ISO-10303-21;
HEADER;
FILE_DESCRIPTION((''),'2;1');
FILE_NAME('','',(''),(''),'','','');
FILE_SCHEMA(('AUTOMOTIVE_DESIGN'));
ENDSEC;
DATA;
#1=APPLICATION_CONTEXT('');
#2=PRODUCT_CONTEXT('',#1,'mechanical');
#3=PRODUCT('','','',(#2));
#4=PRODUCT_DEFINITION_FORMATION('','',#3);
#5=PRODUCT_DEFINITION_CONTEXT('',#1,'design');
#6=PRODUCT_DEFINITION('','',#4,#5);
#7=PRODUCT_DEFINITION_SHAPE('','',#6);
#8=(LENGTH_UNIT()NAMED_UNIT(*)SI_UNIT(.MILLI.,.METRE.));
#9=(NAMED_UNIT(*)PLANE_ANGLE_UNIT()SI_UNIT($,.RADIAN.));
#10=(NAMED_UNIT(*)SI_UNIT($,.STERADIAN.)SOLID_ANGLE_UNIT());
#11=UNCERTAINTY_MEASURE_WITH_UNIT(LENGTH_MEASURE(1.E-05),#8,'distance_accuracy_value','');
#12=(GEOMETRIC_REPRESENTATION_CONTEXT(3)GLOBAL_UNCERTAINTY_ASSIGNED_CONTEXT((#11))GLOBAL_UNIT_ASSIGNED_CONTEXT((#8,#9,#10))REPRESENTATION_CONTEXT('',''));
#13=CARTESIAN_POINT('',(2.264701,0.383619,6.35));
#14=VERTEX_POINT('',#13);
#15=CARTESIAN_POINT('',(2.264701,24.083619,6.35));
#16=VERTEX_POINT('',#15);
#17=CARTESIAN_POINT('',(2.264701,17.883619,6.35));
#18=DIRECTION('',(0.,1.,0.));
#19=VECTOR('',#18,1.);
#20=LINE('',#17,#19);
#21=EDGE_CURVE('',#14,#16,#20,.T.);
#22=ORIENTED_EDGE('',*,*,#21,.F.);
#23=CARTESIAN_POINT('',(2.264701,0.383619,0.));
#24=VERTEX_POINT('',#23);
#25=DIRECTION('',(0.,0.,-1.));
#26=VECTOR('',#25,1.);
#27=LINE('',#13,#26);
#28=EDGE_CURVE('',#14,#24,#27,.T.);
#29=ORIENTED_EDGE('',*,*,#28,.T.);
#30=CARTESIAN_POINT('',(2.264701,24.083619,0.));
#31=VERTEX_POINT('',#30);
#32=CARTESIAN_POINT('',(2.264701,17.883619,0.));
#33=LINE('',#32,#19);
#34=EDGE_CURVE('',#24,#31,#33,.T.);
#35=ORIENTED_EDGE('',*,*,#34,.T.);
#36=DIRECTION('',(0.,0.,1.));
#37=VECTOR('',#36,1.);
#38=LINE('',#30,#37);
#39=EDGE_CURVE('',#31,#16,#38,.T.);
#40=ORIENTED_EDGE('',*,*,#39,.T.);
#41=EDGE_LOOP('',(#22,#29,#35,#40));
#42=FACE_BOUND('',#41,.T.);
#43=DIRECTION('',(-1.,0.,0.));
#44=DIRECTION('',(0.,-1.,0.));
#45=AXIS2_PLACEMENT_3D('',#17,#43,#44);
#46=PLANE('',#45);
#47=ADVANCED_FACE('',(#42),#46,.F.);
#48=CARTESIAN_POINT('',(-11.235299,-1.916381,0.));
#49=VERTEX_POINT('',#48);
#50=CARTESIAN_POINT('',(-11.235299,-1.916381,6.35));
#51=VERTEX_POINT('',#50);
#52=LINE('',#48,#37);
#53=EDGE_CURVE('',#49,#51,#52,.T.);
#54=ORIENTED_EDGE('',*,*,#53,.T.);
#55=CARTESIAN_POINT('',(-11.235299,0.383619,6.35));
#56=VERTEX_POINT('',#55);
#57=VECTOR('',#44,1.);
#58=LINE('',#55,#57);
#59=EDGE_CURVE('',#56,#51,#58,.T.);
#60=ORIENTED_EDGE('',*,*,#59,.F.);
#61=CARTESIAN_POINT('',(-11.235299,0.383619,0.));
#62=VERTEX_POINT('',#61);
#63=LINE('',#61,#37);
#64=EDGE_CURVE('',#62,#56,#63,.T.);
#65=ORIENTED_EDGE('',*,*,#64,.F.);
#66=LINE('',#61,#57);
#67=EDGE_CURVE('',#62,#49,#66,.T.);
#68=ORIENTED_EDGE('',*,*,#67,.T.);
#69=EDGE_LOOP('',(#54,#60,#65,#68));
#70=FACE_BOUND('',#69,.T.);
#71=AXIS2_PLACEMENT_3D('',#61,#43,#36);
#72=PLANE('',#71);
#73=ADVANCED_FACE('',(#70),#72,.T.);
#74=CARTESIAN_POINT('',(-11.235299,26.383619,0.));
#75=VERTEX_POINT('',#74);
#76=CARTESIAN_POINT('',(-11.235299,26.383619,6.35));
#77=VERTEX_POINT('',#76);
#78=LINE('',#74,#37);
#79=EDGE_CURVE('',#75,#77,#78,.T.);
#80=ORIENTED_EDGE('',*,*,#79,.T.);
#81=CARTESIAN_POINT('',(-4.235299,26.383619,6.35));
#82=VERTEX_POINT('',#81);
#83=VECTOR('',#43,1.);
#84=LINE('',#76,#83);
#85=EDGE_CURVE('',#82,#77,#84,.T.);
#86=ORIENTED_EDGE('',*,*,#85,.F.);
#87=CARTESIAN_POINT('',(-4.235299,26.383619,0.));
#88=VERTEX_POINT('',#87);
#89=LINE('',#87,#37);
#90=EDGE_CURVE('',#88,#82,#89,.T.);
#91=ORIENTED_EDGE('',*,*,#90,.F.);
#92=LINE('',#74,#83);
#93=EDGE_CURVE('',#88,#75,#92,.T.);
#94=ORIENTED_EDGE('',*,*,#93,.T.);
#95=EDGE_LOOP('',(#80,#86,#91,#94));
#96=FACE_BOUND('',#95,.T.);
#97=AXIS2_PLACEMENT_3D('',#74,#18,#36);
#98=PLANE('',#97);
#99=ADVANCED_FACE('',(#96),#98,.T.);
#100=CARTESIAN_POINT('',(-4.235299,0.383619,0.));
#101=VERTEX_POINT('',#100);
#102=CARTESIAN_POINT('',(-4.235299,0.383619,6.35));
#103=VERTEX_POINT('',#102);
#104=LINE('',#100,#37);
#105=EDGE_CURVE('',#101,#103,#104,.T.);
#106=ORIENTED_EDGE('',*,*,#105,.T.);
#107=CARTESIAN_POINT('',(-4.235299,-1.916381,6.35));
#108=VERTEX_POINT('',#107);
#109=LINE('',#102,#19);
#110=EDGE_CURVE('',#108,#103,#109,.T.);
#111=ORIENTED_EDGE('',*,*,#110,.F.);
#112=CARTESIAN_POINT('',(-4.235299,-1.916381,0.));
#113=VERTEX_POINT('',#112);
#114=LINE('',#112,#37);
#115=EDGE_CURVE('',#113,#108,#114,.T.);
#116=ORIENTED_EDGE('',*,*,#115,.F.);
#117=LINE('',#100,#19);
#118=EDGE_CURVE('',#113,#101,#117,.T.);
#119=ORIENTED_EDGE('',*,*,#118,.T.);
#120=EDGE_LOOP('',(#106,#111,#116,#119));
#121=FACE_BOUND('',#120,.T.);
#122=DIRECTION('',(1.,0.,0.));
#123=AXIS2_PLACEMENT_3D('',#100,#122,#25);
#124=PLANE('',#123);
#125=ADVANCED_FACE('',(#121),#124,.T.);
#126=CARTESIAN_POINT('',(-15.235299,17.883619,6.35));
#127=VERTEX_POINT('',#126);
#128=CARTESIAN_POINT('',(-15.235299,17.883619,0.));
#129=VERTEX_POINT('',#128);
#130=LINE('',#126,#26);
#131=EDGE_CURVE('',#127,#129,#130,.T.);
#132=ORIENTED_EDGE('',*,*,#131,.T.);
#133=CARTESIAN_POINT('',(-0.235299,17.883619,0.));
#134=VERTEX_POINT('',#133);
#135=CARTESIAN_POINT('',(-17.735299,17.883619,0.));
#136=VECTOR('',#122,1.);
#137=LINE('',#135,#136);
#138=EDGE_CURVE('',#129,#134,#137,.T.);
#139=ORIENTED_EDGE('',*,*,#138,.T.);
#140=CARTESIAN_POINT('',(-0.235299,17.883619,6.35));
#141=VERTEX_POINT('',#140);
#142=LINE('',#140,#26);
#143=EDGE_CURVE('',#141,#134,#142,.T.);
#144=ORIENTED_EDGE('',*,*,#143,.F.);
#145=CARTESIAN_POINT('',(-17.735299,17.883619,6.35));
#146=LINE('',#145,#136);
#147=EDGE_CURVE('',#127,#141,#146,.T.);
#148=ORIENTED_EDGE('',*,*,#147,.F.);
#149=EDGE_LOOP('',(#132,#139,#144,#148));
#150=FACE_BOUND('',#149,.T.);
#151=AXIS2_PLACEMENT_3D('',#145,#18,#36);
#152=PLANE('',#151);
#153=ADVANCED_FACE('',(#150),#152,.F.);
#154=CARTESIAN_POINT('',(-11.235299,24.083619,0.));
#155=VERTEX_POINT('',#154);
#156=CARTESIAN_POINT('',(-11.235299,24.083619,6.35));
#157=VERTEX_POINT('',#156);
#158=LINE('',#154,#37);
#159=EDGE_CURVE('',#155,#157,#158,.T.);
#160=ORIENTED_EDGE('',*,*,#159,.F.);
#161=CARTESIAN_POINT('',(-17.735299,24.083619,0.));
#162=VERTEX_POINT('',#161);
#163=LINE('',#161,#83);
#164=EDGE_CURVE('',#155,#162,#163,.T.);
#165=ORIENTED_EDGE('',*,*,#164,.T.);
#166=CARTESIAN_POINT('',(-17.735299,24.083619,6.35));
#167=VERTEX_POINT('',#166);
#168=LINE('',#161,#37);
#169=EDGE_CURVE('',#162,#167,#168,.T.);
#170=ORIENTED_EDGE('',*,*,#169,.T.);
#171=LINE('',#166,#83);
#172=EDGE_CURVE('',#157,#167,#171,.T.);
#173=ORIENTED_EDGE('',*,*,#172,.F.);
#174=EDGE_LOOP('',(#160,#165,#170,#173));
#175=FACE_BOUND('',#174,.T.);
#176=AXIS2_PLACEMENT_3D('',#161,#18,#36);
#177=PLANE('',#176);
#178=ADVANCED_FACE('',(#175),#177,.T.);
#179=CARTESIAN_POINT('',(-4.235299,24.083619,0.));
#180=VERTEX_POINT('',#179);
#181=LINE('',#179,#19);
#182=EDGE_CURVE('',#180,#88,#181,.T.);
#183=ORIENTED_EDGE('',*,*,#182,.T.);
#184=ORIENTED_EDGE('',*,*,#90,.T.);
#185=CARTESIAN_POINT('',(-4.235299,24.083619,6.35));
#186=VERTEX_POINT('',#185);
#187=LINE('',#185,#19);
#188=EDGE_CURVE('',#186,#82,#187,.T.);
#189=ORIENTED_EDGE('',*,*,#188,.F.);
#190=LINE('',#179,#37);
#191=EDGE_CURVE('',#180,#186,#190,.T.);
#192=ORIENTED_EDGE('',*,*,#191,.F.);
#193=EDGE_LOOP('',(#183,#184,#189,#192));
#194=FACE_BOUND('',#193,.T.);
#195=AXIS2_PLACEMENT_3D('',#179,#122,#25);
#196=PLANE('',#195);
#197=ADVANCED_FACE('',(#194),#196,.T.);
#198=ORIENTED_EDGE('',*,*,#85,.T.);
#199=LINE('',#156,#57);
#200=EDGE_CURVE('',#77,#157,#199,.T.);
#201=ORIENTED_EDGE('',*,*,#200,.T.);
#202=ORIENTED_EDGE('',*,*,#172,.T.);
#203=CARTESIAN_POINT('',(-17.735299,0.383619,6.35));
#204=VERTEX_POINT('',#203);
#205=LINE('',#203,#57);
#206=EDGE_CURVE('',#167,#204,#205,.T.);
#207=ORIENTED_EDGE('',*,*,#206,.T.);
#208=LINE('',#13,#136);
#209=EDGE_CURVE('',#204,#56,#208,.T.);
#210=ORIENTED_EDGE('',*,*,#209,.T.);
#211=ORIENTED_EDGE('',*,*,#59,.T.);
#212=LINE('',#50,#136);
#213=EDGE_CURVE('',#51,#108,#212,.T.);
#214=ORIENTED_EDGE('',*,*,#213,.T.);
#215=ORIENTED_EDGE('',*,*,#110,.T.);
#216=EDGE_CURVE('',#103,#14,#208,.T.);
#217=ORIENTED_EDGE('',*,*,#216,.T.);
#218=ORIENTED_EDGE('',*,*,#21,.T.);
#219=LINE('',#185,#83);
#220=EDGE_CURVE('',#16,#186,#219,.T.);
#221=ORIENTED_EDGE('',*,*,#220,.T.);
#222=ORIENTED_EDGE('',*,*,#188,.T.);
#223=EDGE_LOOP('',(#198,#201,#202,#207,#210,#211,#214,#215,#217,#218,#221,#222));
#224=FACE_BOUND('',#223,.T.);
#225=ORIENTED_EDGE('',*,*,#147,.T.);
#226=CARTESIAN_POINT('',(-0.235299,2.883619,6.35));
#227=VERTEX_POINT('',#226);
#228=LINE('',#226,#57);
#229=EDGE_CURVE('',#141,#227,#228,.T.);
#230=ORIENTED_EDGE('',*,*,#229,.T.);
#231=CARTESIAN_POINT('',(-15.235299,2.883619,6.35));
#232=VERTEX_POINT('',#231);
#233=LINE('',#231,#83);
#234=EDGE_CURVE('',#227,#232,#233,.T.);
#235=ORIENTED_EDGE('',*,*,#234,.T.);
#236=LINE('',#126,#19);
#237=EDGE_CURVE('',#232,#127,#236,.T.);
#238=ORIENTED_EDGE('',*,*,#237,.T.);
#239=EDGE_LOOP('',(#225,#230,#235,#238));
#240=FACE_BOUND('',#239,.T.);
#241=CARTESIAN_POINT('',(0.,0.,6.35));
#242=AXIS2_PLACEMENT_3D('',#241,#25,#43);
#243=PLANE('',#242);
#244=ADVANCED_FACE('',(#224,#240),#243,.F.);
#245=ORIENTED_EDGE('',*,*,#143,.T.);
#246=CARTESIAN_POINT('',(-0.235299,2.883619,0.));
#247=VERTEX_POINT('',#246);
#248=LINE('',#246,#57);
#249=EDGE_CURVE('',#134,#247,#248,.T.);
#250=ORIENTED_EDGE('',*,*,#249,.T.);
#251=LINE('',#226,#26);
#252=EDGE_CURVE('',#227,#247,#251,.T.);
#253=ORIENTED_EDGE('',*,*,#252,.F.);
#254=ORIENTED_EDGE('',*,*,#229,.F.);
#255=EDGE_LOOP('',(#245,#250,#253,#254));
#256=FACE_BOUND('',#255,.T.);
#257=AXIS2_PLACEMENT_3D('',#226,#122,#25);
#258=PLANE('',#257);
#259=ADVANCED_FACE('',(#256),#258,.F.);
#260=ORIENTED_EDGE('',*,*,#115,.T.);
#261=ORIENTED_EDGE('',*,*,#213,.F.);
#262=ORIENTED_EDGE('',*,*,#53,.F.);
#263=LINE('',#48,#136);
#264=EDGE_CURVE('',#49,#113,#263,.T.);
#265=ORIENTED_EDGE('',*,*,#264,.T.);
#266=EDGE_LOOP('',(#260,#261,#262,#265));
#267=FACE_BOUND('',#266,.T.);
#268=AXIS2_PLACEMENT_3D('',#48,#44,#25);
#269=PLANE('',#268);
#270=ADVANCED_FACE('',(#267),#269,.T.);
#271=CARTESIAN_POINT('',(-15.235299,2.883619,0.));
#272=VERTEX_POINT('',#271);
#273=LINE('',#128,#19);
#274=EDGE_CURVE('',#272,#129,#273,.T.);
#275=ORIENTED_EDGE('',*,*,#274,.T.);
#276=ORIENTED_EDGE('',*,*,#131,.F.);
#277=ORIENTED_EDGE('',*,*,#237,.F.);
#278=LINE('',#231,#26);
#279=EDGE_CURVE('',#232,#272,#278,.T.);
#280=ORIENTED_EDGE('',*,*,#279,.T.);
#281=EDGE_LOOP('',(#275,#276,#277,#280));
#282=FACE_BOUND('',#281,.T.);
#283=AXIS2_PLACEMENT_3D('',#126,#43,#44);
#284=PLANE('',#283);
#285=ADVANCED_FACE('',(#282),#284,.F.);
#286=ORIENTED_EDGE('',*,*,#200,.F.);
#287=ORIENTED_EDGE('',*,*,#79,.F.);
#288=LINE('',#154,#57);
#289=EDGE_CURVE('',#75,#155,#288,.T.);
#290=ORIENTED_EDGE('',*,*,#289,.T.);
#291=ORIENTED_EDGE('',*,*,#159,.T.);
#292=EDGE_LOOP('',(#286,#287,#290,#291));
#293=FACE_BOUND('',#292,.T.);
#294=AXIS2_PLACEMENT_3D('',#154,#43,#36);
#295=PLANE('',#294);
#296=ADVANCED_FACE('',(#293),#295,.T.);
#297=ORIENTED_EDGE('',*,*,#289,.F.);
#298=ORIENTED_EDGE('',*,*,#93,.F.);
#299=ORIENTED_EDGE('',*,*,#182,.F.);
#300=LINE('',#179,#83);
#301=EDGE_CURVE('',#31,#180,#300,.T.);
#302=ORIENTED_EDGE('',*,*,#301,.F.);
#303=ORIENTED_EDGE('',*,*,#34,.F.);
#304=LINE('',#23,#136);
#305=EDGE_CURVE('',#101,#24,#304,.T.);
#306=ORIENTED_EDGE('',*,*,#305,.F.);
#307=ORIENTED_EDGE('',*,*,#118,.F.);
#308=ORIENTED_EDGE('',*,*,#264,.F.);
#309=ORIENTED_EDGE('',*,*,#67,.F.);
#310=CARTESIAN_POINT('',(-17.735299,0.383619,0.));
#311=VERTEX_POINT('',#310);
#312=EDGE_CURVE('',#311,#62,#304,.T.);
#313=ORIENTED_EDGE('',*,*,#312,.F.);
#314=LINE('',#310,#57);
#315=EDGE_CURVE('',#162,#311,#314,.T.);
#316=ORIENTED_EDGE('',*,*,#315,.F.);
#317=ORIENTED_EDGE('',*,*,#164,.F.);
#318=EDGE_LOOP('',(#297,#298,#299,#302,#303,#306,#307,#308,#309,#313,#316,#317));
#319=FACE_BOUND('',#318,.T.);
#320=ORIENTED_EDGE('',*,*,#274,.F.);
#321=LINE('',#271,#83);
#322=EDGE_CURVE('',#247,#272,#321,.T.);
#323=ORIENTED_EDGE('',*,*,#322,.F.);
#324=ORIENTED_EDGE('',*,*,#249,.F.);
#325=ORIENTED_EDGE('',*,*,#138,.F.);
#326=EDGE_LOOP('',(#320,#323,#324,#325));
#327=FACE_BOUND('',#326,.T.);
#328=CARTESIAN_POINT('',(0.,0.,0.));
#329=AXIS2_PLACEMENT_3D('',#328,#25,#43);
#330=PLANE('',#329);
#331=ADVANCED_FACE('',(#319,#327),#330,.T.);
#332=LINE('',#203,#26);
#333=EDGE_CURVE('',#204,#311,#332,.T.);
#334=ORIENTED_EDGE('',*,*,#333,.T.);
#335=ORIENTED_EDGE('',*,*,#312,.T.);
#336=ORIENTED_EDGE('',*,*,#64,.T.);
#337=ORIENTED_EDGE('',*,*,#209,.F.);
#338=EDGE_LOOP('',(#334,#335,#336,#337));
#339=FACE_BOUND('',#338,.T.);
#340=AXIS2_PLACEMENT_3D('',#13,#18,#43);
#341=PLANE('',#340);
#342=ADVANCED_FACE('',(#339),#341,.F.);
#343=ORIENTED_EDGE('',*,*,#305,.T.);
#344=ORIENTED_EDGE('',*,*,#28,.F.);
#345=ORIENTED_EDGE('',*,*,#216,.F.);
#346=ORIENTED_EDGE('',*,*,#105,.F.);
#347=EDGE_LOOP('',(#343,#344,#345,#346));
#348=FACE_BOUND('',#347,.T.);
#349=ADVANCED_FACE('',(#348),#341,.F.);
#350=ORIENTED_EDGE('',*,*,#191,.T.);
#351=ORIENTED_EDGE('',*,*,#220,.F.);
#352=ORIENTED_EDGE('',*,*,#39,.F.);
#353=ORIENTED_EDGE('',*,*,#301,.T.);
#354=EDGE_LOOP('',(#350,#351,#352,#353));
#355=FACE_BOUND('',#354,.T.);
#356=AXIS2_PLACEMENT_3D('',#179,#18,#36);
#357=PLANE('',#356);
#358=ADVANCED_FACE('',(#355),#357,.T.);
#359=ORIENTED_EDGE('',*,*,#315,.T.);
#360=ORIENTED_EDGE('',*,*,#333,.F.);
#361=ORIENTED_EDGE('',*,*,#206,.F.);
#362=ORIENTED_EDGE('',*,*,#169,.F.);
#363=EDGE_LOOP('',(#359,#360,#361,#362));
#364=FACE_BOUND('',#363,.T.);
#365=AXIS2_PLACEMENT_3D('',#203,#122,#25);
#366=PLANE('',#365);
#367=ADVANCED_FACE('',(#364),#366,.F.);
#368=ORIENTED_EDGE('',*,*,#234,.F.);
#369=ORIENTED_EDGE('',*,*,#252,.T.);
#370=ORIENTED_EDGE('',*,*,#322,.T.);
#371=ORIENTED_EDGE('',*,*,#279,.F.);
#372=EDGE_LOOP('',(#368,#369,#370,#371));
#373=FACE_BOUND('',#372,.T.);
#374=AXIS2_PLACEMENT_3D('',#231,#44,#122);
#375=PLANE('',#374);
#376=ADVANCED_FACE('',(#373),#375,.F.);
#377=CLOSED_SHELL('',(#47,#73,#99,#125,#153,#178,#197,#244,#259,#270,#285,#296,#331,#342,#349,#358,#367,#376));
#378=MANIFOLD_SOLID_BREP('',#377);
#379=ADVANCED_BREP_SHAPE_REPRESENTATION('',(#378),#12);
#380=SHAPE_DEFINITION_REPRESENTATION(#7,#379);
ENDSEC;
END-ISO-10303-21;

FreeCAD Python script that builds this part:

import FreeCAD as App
import Part
import Sketcher


def add_polygon(sketch, points):
    """Adds a closed chain of lines whose ends are joined by coincident constraints."""
    first, n = sketch.GeometryCount, len(points)
    for a, b in zip(points, points[1:] + points[:1]):
        sketch.addGeometry(Part.LineSegment(App.Vector(*a, 0), App.Vector(*b, 0)), False)
    for i in range(n):
        sketch.addConstraint(Sketcher.Constraint("Coincident", first + i, 2, first + (i + 1) % n, 1))

doc = App.newDocument("Part")
body = doc.addObject("PartDesign::Body", "Body")

# Sketch on XY plane
sketch1 = body.newObject("Sketcher::SketchObject", "Sketch")
sketch1.AttachmentSupport = (doc.getObject("XY_Plane"), [""])
sketch1.MapMode = "FlatFace"
add_polygon(sketch1, [(-15.2, 2.9), (-15.2, 17.9), (-17.7, 17.9), (-17.7, 0.4), (2.3, 0.4), (2.3, 17.9), (-0.2, 17.9), (-0.2, 2.9)])  # lines 0-7
sketch1.addConstraint(Sketcher.Constraint("Vertical", 0))
sketch1.addConstraint(Sketcher.Constraint("Horizontal", 1))
sketch1.addConstraint(Sketcher.Constraint("Vertical", 2))
sketch1.addConstraint(Sketcher.Constraint("Horizontal", 3))
sketch1.addConstraint(Sketcher.Constraint("Vertical", 4))
sketch1.addConstraint(Sketcher.Constraint("Horizontal", 5))
sketch1.addConstraint(Sketcher.Constraint("Vertical", 6))
sketch1.addConstraint(Sketcher.Constraint("Horizontal", 7))
sketch1.addConstraint(Sketcher.Constraint("Horizontal", 1, 2, 4, 2))
sketch1.addConstraint(Sketcher.Constraint("Equal", 1, 5))
sketch1.addConstraint(Sketcher.Constraint("Equal", 7, 0))
sketch1.addConstraint(Sketcher.Constraint("DistanceX", 3, 1, 3, 2, 20.0))
sketch1.addConstraint(Sketcher.Constraint("DistanceX", 7, 2, 7, 1, 15.0))
sketch1.addConstraint(Sketcher.Constraint("DistanceY", 2, 2, 2, 1, 17.5))
sketch1.addConstraint(Sketcher.Constraint("DistanceX", 0, 2, -1, 1, 15.235299))
sketch1.addConstraint(Sketcher.Constraint("DistanceY", -1, 1, 0, 2, 17.883619))
pad1 = body.newObject("PartDesign::Pad", "Pad")
pad1.Profile = sketch1
pad1.Length = 6.35

# Sketch on XY plane
sketch2 = body.newObject("Sketcher::SketchObject", "Sketch001")
sketch2.AttachmentSupport = (doc.getObject("XY_Plane"), [""])
sketch2.MapMode = "FlatFace"
add_polygon(sketch2, [(-17.7, 20.4), (-17.7, 17.9), (2.3, 17.9), (2.3, 20.4)])  # lines 0-3
sketch2.addConstraint(Sketcher.Constraint("Vertical", 0))
sketch2.addConstraint(Sketcher.Constraint("Horizontal", 1))
sketch2.addConstraint(Sketcher.Constraint("Vertical", 2))
sketch2.addConstraint(Sketcher.Constraint("Horizontal", 3))
sketch2.addConstraint(Sketcher.Constraint("DistanceX", 1, 1, 1, 2, 20.0))
sketch2.addConstraint(Sketcher.Constraint("DistanceY", 0, 2, 0, 1, 2.5))
sketch2.addConstraint(Sketcher.Constraint("DistanceX", 0, 2, -1, 1, 17.735299))
sketch2.addConstraint(Sketcher.Constraint("DistanceY", -1, 1, 0, 2, 17.883619))
pad2 = body.newObject("PartDesign::Pad", "Pad001")
pad2.Profile = sketch2
pad2.Length = 6.35

# Sketch on XY plane
sketch3 = body.newObject("Sketcher::SketchObject", "Sketch002")
sketch3.AttachmentSupport = (doc.getObject("XY_Plane"), [""])
sketch3.MapMode = "FlatFace"
sketch3.AttachmentOffset = App.Placement(App.Vector(0, 0, 6.35), App.Rotation())
add_polygon(sketch3, [(-17.7, 20.4), (2.3, 20.4), (2.3, 24.1), (-4.2, 24.1), (-4.2, 26.4), (-11.2, 26.4), (-11.2, 24.1), (-17.7, 24.1)])  # lines 0-7
add_polygon(sketch3, [(-11.2, 0.4), (-11.2, -1.9), (-4.2, -1.9), (-4.2, 0.4)])  # lines 8-11
sketch3.addConstraint(Sketcher.Constraint("Horizontal", 0))
sketch3.addConstraint(Sketcher.Constraint("Vertical", 1))
sketch3.addConstraint(Sketcher.Constraint("Horizontal", 2))
sketch3.addConstraint(Sketcher.Constraint("Vertical", 3))
sketch3.addConstraint(Sketcher.Constraint("Horizontal", 4))
sketch3.addConstraint(Sketcher.Constraint("Vertical", 5))
sketch3.addConstraint(Sketcher.Constraint("Horizontal", 6))
sketch3.addConstraint(Sketcher.Constraint("Vertical", 7))
sketch3.addConstraint(Sketcher.Constraint("Vertical", 8))
sketch3.addConstraint(Sketcher.Constraint("Horizontal", 9))
sketch3.addConstraint(Sketcher.Constraint("Vertical", 10))
sketch3.addConstraint(Sketcher.Constraint("Horizontal", 11))
sketch3.addConstraint(Sketcher.Constraint("Horizontal", 2, 2, 5, 2))
sketch3.addConstraint(Sketcher.Constraint("Vertical", 5, 2, 8, 2))
sketch3.addConstraint(Sketcher.Constraint("Vertical", 3, 2, 9, 2))
sketch3.addConstraint(Sketcher.Constraint("Equal", 2, 6))
sketch3.addConstraint(Sketcher.Constraint("Equal", 5, 8))
sketch3.addConstraint(Sketcher.Constraint("DistanceX", 0, 1, 0, 2, 20.0))
sketch3.addConstraint(Sketcher.Constraint("DistanceX", 4, 2, 4, 1, 7.0))
sketch3.addConstraint(Sketcher.Constraint("DistanceY", 1, 1, 1, 2, 3.7))
sketch3.addConstraint(Sketcher.Constraint("DistanceY", 3, 1, 3, 2, 2.3))
sketch3.addConstraint(Sketcher.Constraint("DistanceY", 8, 2, 5, 2, 26.0))
sketch3.addConstraint(Sketcher.Constraint("DistanceX", -1, 1, 0, 2, 2.264701))
sketch3.addConstraint(Sketcher.Constraint("DistanceY", -1, 1, 0, 2, 20.383619))
pad3 = body.newObject("PartDesign::Pad", "Pad002")
pad3.Profile = sketch3
pad3.Length = 6.35
pad3.Reversed = True

doc.recompute()
